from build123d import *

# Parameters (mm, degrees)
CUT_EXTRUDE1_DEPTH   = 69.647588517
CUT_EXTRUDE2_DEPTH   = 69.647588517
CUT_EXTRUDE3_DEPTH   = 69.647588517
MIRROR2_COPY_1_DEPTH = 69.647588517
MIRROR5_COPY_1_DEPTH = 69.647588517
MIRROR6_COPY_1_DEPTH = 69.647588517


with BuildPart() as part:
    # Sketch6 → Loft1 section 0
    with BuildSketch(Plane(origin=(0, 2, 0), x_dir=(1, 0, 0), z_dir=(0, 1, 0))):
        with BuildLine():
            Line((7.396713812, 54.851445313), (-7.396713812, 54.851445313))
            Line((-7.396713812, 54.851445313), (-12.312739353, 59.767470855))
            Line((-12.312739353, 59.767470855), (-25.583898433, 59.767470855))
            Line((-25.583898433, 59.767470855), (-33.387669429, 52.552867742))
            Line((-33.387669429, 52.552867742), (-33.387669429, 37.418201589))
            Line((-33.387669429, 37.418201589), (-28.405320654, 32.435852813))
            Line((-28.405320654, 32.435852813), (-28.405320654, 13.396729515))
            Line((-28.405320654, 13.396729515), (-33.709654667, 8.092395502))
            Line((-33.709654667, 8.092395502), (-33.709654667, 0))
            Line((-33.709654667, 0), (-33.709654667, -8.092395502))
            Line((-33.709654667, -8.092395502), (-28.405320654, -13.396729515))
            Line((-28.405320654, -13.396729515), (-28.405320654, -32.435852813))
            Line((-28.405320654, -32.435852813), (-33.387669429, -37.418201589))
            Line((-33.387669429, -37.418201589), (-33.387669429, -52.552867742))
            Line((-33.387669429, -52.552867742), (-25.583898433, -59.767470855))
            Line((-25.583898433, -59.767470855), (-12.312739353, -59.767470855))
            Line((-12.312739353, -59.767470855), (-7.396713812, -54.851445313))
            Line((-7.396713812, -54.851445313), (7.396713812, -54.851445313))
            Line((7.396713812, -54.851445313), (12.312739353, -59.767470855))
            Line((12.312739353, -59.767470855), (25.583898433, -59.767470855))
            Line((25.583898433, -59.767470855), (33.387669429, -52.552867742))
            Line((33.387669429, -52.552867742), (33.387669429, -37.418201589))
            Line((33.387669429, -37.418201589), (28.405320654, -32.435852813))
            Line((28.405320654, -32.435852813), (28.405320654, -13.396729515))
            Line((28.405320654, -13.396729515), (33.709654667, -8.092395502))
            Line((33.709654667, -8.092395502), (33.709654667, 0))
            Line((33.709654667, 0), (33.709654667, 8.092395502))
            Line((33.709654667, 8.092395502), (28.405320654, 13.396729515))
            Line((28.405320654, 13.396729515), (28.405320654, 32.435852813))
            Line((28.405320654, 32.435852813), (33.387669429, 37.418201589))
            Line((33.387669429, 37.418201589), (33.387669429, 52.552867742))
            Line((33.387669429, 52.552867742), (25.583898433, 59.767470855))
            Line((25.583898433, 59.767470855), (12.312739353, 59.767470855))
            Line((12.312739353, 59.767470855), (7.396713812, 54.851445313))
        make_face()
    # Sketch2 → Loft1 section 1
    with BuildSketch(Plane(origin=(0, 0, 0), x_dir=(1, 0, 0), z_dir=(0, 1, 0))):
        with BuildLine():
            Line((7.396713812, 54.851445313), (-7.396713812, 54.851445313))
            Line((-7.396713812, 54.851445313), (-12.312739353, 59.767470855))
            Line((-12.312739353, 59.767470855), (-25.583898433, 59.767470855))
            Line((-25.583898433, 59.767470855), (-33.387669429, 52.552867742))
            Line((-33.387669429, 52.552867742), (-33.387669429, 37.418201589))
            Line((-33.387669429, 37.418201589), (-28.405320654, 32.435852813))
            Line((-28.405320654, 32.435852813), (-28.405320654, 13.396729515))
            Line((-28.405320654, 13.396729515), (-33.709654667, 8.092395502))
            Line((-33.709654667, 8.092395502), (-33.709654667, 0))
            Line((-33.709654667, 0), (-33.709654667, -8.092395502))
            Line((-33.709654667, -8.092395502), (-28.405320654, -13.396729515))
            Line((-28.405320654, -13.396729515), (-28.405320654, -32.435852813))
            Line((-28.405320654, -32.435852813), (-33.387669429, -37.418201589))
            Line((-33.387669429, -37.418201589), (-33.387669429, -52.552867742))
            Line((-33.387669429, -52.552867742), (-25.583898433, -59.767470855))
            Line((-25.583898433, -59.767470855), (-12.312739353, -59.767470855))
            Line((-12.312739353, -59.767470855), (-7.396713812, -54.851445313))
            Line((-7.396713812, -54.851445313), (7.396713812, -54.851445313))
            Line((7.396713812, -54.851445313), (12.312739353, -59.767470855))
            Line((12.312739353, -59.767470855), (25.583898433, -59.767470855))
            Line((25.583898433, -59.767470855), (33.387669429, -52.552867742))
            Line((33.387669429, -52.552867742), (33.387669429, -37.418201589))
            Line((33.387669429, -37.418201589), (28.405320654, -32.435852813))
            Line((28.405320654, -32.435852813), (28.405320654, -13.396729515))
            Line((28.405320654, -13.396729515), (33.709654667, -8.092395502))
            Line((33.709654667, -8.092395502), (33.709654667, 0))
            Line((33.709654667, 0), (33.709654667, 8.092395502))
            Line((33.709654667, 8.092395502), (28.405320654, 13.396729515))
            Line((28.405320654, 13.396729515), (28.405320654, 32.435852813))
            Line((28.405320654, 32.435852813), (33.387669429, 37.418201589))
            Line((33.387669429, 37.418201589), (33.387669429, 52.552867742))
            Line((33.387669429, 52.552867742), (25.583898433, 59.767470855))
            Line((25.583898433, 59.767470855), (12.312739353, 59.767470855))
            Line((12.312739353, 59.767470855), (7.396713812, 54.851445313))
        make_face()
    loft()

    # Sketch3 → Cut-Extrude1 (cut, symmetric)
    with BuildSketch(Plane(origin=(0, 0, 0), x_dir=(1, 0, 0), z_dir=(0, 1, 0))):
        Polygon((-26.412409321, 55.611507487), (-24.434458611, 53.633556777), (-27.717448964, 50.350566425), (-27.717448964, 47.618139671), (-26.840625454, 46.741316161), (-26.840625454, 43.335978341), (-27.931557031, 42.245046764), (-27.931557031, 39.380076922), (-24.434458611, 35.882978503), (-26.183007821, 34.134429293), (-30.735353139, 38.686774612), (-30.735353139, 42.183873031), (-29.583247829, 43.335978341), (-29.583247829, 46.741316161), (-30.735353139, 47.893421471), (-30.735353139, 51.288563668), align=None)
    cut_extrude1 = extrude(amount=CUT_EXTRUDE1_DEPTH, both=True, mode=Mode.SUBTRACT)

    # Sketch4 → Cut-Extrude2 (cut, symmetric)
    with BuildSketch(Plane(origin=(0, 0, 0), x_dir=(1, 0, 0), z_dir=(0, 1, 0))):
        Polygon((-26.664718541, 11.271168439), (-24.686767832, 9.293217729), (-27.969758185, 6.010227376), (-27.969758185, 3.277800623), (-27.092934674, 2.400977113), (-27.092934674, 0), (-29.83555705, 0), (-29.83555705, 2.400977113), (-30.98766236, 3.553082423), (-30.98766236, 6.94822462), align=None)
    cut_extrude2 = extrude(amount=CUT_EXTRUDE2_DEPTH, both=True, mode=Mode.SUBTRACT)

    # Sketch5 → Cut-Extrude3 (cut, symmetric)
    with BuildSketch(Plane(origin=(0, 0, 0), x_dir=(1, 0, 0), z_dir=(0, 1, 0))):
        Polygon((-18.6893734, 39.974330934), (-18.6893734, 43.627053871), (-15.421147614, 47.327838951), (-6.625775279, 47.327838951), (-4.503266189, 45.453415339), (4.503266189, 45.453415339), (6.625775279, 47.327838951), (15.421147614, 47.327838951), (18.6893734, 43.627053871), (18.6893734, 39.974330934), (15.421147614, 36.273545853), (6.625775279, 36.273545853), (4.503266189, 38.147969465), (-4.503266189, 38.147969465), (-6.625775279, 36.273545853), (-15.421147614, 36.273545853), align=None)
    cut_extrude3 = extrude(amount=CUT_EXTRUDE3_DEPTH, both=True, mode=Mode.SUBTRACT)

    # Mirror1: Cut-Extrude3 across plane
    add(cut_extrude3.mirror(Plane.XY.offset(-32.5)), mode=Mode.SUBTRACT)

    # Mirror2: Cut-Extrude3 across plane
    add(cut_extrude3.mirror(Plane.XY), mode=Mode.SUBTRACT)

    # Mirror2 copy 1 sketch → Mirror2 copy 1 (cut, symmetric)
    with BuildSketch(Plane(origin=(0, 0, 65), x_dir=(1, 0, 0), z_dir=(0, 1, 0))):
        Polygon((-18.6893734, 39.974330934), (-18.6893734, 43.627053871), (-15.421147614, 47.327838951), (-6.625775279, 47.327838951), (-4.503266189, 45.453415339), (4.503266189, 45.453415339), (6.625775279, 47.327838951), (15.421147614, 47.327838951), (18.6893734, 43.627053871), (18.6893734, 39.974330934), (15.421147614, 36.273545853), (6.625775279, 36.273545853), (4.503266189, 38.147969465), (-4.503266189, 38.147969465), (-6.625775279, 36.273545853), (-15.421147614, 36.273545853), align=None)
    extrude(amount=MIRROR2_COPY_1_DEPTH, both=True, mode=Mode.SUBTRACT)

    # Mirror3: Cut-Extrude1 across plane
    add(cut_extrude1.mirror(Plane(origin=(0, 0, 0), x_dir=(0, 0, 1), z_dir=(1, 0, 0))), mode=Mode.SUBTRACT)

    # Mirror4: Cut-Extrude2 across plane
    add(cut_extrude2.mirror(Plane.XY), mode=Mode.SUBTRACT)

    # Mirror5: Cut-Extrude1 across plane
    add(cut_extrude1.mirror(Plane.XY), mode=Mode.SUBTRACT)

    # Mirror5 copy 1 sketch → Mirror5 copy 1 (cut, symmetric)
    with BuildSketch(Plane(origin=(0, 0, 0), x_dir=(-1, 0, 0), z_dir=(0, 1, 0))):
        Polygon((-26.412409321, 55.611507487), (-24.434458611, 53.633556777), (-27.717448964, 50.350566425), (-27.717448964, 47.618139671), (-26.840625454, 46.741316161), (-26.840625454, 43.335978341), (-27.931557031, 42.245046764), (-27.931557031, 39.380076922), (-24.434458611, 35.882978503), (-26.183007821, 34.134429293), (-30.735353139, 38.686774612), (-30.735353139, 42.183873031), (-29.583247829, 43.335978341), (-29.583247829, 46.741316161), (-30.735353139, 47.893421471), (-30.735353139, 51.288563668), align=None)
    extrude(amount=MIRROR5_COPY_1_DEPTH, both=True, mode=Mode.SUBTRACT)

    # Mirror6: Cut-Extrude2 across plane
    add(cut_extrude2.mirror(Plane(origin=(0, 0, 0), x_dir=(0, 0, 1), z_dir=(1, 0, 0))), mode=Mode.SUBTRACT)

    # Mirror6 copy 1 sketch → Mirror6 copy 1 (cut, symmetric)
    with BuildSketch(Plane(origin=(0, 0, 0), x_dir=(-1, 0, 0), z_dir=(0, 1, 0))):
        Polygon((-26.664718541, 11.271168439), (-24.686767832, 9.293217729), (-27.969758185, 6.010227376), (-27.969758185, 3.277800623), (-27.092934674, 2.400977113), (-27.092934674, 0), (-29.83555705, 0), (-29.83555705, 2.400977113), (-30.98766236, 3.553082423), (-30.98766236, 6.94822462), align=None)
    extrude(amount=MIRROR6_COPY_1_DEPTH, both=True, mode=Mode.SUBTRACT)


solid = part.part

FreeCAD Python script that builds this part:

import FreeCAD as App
import Part
import Sketcher
Q = App.Units.Quantity


def add_polygon(sketch, points):
    """Adds a closed chain of lines whose ends are joined by coincident constraints."""
    first, n = sketch.GeometryCount, len(points)
    for a, b in zip(points, points[1:] + points[:1]):
        sketch.addGeometry(Part.LineSegment(App.Vector(*a, 0), App.Vector(*b, 0)), False)
    for i in range(n):
        sketch.addConstraint(Sketcher.Constraint("Coincident", first + i, 2, first + (i + 1) % n, 1))

doc = App.newDocument("Part")
body = doc.addObject("PartDesign::Body", "Body")

sketch1 = body.newObject("Sketcher::SketchObject", "Sketch")
sketch1.AttachmentSupport = (doc.getObject("XZ_Plane"), [""])
sketch1.MapMode = "FlatFace"
sketch1.AttachmentOffset = App.Placement(App.Vector(0, 0, -2), App.Rotation())
add_polygon(sketch1, [(7, -55), (-7, -55), (-12, -60), (-26, -60), (-33, -53), (-33, -37), (-28, -32), (-28, -13), (-34, -8), (-34, 8), (-28, 13), (-28, 32), (-33, 37), (-33, 53), (-26, 60), (-12, 60), (-7, 55), (7, 55), (12, 60), (26, 60), (33, 53), (33, 37), (28, 32), (28, 13), (34, 8), (34, -8), (28, -13), (28, -32), (33, -37), (33, -53), (26, -60), (12, -60)])
sketch1.addConstraint([
    Sketcher.Constraint("Horizontal", 0),
    Sketcher.Constraint("Horizontal", 2),
    Sketcher.Constraint("Vertical", 4),
    Sketcher.Constraint("Vertical", 6),
    Sketcher.Constraint("Vertical", 8),
    Sketcher.Constraint("Vertical", 10),
    Sketcher.Constraint("Vertical", 12),
    Sketcher.Constraint("Horizontal", 14),
    Sketcher.Constraint("Horizontal", 16),
    Sketcher.Constraint("Horizontal", 18),
    Sketcher.Constraint("Vertical", 20),
    Sketcher.Constraint("Vertical", 22),
    Sketcher.Constraint("Vertical", 24),
    Sketcher.Constraint("Vertical", 26),
    Sketcher.Constraint("Vertical", 28),
    Sketcher.Constraint("Horizontal", 30),
    Sketcher.Constraint("Symmetric", 0, 2, 16, 2, -1, 1),
    Sketcher.Constraint("Symmetric", 1, 2, 17, 2, -1, 1),
    Sketcher.Constraint("Symmetric", 3, 2, 19, 2, -1, 1),
    Sketcher.Constraint("Symmetric", 5, 2, 21, 2, -1, 1),
    Sketcher.Constraint("Symmetric", 7, 2, 23, 2, -1, 1),
    Sketcher.Constraint("Symmetric", 9, 2, 25, 2, -1, 1),
    Sketcher.Constraint("Symmetric", 11, 2, 27, 2, -1, 1),
    Sketcher.Constraint("Symmetric", 13, 2, 29, 2, -1, 1),
    Sketcher.Constraint("Symmetric", 14, 2, 17, 2, -2),
    Sketcher.Constraint("Symmetric", 12, 2, 19, 2, -2),
    Sketcher.Constraint("Symmetric", 10, 2, 21, 2, -2),
    Sketcher.Constraint("Parallel", 1, 5),
    Sketcher.Constraint("Perpendicular", 5, 7),
    Sketcher.Constraint("Perpendicular", 7, 9),
    Sketcher.Constraint("Perpendicular", 9, 11),
    Sketcher.Constraint("Parallel", 11, 15),
    Sketcher.Constraint("Parallel", 3, 19),
    Sketcher.Constraint("Parallel", 17, 21),
    Sketcher.Constraint("Perpendicular", 21, 23),
    Sketcher.Constraint("Perpendicular", 23, 25),
    Sketcher.Constraint("Perpendicular", 25, 27),
    Sketcher.Constraint("Parallel", 13, 29),
    Sketcher.Constraint("Parallel", 27, 31),
    Sketcher.Constraint("Horizontal", 11, 2, 20, 2),
    Sketcher.Constraint("Horizontal", 9, 2, 22, 2),
    Sketcher.Constraint("Vertical", 2, 2, 13, 2),
    Sketcher.Constraint("Vertical", 17, 2, 30, 2),
    Sketcher.Constraint("DistanceX", 2, 2, 2, 1, Q("13.271159 mm")),
    Sketcher.Constraint("DistanceY", 8, 1, 8, 2, Q("16.184791 mm")),
    Sketcher.Constraint("DistanceX", 2, 2, -1, 1, Q("25.583898 mm")),
    Sketcher.Constraint("DistanceY", 4, 2, -1, 1, Q("37.418202 mm")),
    Sketcher.Constraint("Distance", 1, Q("6.95231 mm")),
    Sketcher.Constraint("Distance", 7, Q("7.501461 mm")),
    Sketcher.Constraint("DistanceY", 4, 1, 4, 2, Q("15.134666 mm")),
    Sketcher.Constraint("DistanceY", 6, 1, 6, 2, Q("19.039123 mm")),
    Sketcher.Constraint("DistanceY", 1, 2, -1, 1, Q("59.767471 mm")),
    Sketcher.Constraint("DistanceX", 3, 2, -1, 1, Q("33.387669 mm")),
])

sketch2 = body.newObject("Sketcher::SketchObject", "Sketch001")
sketch2.AttachmentSupport = (doc.getObject("XZ_Plane"), [""])
sketch2.MapMode = "FlatFace"
add_polygon(sketch2, [(7, -55), (-7, -55), (-12, -60), (-26, -60), (-33, -53), (-33, -37), (-28, -32), (-28, -13), (-34, -8), (-34, 8), (-28, 13), (-28, 32), (-33, 37), (-33, 53), (-26, 60), (-12, 60), (-7, 55), (7, 55), (12, 60), (26, 60), (33, 53), (33, 37), (28, 32), (28, 13), (34, 8), (34, -8), (28, -13), (28, -32), (33, -37), (33, -53), (26, -60), (12, -60)])
sketch2.addConstraint([
    Sketcher.Constraint("Horizontal", 0),
    Sketcher.Constraint("Horizontal", 2),
    Sketcher.Constraint("Vertical", 4),
    Sketcher.Constraint("Vertical", 6),
    Sketcher.Constraint("Vertical", 8),
    Sketcher.Constraint("Vertical", 10),
    Sketcher.Constraint("Vertical", 12),
    Sketcher.Constraint("Horizontal", 14),
    Sketcher.Constraint("Horizontal", 16),
    Sketcher.Constraint("Horizontal", 18),
    Sketcher.Constraint("Vertical", 20),
    Sketcher.Constraint("Vertical", 22),
    Sketcher.Constraint("Vertical", 24),
    Sketcher.Constraint("Vertical", 26),
    Sketcher.Constraint("Vertical", 28),
    Sketcher.Constraint("Horizontal", 30),
    Sketcher.Constraint("Symmetric", 0, 2, 16, 2, -1, 1),
    Sketcher.Constraint("Symmetric", 1, 2, 17, 2, -1, 1),
    Sketcher.Constraint("Symmetric", 3, 2, 19, 2, -1, 1),
    Sketcher.Constraint("Symmetric", 5, 2, 21, 2, -1, 1),
    Sketcher.Constraint("Symmetric", 7, 2, 23, 2, -1, 1),
    Sketcher.Constraint("Symmetric", 9, 2, 25, 2, -1, 1),
    Sketcher.Constraint("Symmetric", 11, 2, 27, 2, -1, 1),
    Sketcher.Constraint("Symmetric", 13, 2, 29, 2, -1, 1),
    Sketcher.Constraint("Symmetric", 14, 2, 17, 2, -2),
    Sketcher.Constraint("Symmetric", 12, 2, 19, 2, -2),
    Sketcher.Constraint("Symmetric", 10, 2, 21, 2, -2),
    Sketcher.Constraint("Parallel", 1, 5),
    Sketcher.Constraint("Perpendicular", 5, 7),
    Sketcher.Constraint("Perpendicular", 7, 9),
    Sketcher.Constraint("Perpendicular", 9, 11),
    Sketcher.Constraint("Parallel", 11, 15),
    Sketcher.Constraint("Parallel", 3, 19),
    Sketcher.Constraint("Parallel", 17, 21),
    Sketcher.Constraint("Perpendicular", 21, 23),
    Sketcher.Constraint("Perpendicular", 23, 25),
    Sketcher.Constraint("Perpendicular", 25, 27),
    Sketcher.Constraint("Parallel", 13, 29),
    Sketcher.Constraint("Parallel", 27, 31),
    Sketcher.Constraint("Horizontal", 11, 2, 20, 2),
    Sketcher.Constraint("Horizontal", 9, 2, 22, 2),
    Sketcher.Constraint("Vertical", 2, 2, 13, 2),
    Sketcher.Constraint("Vertical", 17, 2, 30, 2),
    Sketcher.Constraint("DistanceX", 2, 2, 2, 1, Q("13.271159 mm")),
    Sketcher.Constraint("DistanceY", 8, 1, 8, 2, Q("16.184791 mm")),
    Sketcher.Constraint("DistanceX", 2, 2, -1, 1, Q("25.583898 mm")),
    Sketcher.Constraint("DistanceY", 4, 2, -1, 1, Q("37.418202 mm")),
    Sketcher.Constraint("Distance", 1, Q("6.95231 mm")),
    Sketcher.Constraint("Distance", 7, Q("7.501461 mm")),
    Sketcher.Constraint("DistanceY", 4, 1, 4, 2, Q("15.134666 mm")),
    Sketcher.Constraint("DistanceY", 6, 1, 6, 2, Q("19.039123 mm")),
    Sketcher.Constraint("DistanceY", 1, 2, -1, 1, Q("59.767471 mm")),
    Sketcher.Constraint("DistanceX", 3, 2, -1, 1, Q("33.387669 mm")),
])

additiveloft = body.newObject("PartDesign::AdditiveLoft", "AdditiveLoft")
additiveloft.Profile = sketch1
additiveloft.Sections = [sketch2]

sketch3 = body.newObject("Sketcher::SketchObject", "Sketch002")
sketch3.AttachmentSupport = (doc.getObject("XZ_Plane"), [""])
sketch3.MapMode = "FlatFace"
add_polygon(sketch3, [(-24.4, -53.6), (-26.4, -55.6), (-30.7, -51.3), (-30.7, -47.9), (-29.6, -46.7), (-29.6, -43.3), (-30.7, -42.2), (-30.7, -38.7), (-26.2, -34.1), (-24.4, -35.9), (-27.9, -39.4), (-27.9, -42.2), (-26.8, -43.3), (-26.8, -46.7), (-27.7, -47.6), (-27.7, -50.4)])
sketch3.addConstraint([
    Sketcher.Constraint("Vertical", 2),
    Sketcher.Constraint("Vertical", 4),
    Sketcher.Constraint("Vertical", 6),
    Sketcher.Constraint("Vertical", 10),
    Sketcher.Constraint("Vertical", 12),
    Sketcher.Constraint("Vertical", 14),
    Sketcher.Constraint("Perpendicular", 0, 1),
    Sketcher.Constraint("Perpendicular", 1, 3),
    Sketcher.Constraint("Perpendicular", 3, 5),
    Sketcher.Constraint("Perpendicular", 5, 7),
    Sketcher.Constraint("Perpendicular", 7, 8),
    Sketcher.Constraint("Perpendicular", 8, 9),
    Sketcher.Constraint("Perpendicular", 9, 11),
    Sketcher.Constraint("Perpendicular", 11, 13),
    Sketcher.Constraint("Perpendicular", 13, 15),
    Sketcher.Constraint("Horizontal", 4, 2, 11, 2),
    Sketcher.Constraint("Horizontal", 3, 2, 12, 2),
    Sketcher.Constraint("Vertical", 2, 2, 5, 2),
    Sketcher.Constraint("Vertical", 8, 2, 15, 2),
    Sketcher.Constraint("Equal", 3, 5),
    Sketcher.Constraint("DistanceY", 6, 1, 6, 2, Q("3.497098 mm")),
    Sketcher.Constraint("DistanceY", 4, 2, 8, 2, Q("7.453 mm")),
    Sketcher.Constraint("DistanceY", 10, 2, 10, 1, Q("2.86497 mm")),
    Sketcher.Constraint("DistanceY", 4, 2, 9, 2, Q("3.955901 mm")),
    Sketcher.Constraint("DistanceX", 3, 2, 13, 2, Q("1.865799 mm")),
    Sketcher.Constraint("Distance", 7, Q("6.437988 mm")),
    Sketcher.Constraint("DistanceY", 2, 1, 2, 2, Q("3.395142 mm")),
    Sketcher.Constraint("DistanceY", 4, 1, 4, 2, Q("3.405338 mm")),
    Sketcher.Constraint("DistanceY", 14, 2, 14, 1, Q("2.732427 mm")),
    Sketcher.Constraint("DistanceX", 0, 2, -1, 1, Q("26.412409 mm")),
    Sketcher.Constraint("DistanceY", 2, 2, -1, 1, Q("47.893421 mm")),
    Sketcher.Constraint("DistanceY", 4, 2, -1, 1, Q("43.335978 mm")),
])
pocket1 = body.newObject("PartDesign::Pocket", "Pocket")
pocket1.Profile = sketch3
pocket1.Length = 139.295177
pocket1.Midplane = True

sketch4 = body.newObject("Sketcher::SketchObject", "Sketch003")
sketch4.AttachmentSupport = (doc.getObject("XZ_Plane"), [""])
sketch4.MapMode = "FlatFace"
add_polygon(sketch4, [(-24.7, -9.3), (-26.7, -11.3), (-31, -6.9), (-31, -3.6), (-29.8, -2.4), (-29.8, 0), (-27.1, 0), (-27.1, -2.4), (-28, -3.3), (-28, -6)])
sketch4.addConstraint([
    Sketcher.Constraint("Vertical", 2),
    Sketcher.Constraint("Vertical", 4),
    Sketcher.Constraint("Horizontal", 5),
    Sketcher.Constraint("Vertical", 6),
    Sketcher.Constraint("Vertical", 8),
    Sketcher.Constraint("PointOnObject", 4, 2, -1),
    Sketcher.Constraint("Perpendicular", 0, 1),
    Sketcher.Constraint("Perpendicular", 1, 3),
    Sketcher.Constraint("Parallel", 3, 7),
    Sketcher.Constraint("Perpendicular", 7, 9),
    Sketcher.Constraint("Horizontal", 3, 2, 6, 2),
    Sketcher.Constraint("Angle", 0, Q("-135 deg")),
    Sketcher.Constraint("DistanceY", 7, 2, -1, 1, Q("3.277801 mm")),
    Sketcher.Constraint("DistanceX", 3, 2, 7, 2, Q("1.865799 mm")),
    Sketcher.Constraint("Distance", 9, Q("4.642849 mm")),
    Sketcher.Constraint("DistanceX", 5, 1, 5, 2, Q("2.742622 mm")),
    Sketcher.Constraint("DistanceY", 2, 1, 2, 2, Q("3.395142 mm")),
    Sketcher.Constraint("DistanceY", 8, 2, 8, 1, Q("2.732427 mm")),
    Sketcher.Constraint("DistanceX", 0, 2, -1, 1, Q("26.664719 mm")),
    Sketcher.Constraint("DistanceY", 0, 2, -1, 1, Q("11.271168 mm")),
])
pocket2 = body.newObject("PartDesign::Pocket", "Pocket001")
pocket2.Profile = sketch4
pocket2.Length = 139.295177
pocket2.Midplane = True

sketch5 = body.newObject("Sketcher::SketchObject", "Sketch004")
sketch5.AttachmentSupport = (doc.getObject("XZ_Plane"), [""])
sketch5.MapMode = "FlatFace"
add_polygon(sketch5, [(-18.7, -43.6), (-18.7, -40), (-15.4, -36.3), (-6.6, -36.3), (-4.5, -38.1), (4.5, -38.1), (6.6, -36.3), (15.4, -36.3), (18.7, -40), (18.7, -43.6), (15.4, -47.3), (6.6, -47.3), (4.5, -45.5), (-4.5, -45.5), (-6.6, -47.3), (-15.4, -47.3)])
sketch5.addConstraint([
    Sketcher.Constraint("Vertical", 0),
    Sketcher.Constraint("Horizontal", 2),
    Sketcher.Constraint("Horizontal", 4),
    Sketcher.Constraint("Horizontal", 6),
    Sketcher.Constraint("Vertical", 8),
    Sketcher.Constraint("Horizontal", 10),
    Sketcher.Constraint("Horizontal", 12),
    Sketcher.Constraint("Horizontal", 14),
    Sketcher.Constraint("Symmetric", 2, 2, 5, 2, -2),
    Sketcher.Constraint("Symmetric", 0, 2, 7, 2, -2),
    Sketcher.Constraint("Symmetric", 10, 2, 13, 2, -2),
    Sketcher.Constraint("Perpendicular", 1, 3),
    Sketcher.Constraint("Perpendicular", 5, 7),
    Sketcher.Constraint("Perpendicular", 3, 9),
    Sketcher.Constraint("Perpendicular", 9, 11),
    Sketcher.Constraint("Perpendicular", 7, 13),
    Sketcher.Constraint("Perpendicular", 13, 15),
    Sketcher.Constraint("Horizontal", 8, 2, 15, 2),
    Sketcher.Constraint("Vertical", 6, 2, 9, 2),
    Sketcher.Constraint("Vertical", 5, 2, 10, 2),
    Sketcher.Constraint("Vertical", 4, 2, 11, 2),
    Sketcher.Constraint("Vertical", 3, 2, 12, 2),
    Sketcher.Constraint("DistanceX", 0, 2, 2, 2, Q("12.063598 mm")),
    Sketcher.Constraint("Distance", 1, Q("4.937318 mm")),
    Sketcher.Constraint("DistanceX", 2, 1, 2, 2, Q("8.795372 mm")),
    Sketcher.Constraint("DistanceX", 4, 1, 4, 2, Q("9.006532 mm")),
    Sketcher.Constraint("DistanceY", 0, 1, 0, 2, Q("3.652723 mm")),
    Sketcher.Constraint("DistanceY", 0, 2, -1, 1, Q("39.974331 mm")),
    Sketcher.Constraint("DistanceY", 3, 2, -1, 1, Q("38.147969 mm")),
])
pocket3 = body.newObject("PartDesign::Pocket", "Pocket002")
pocket3.Profile = sketch5
pocket3.Length = 139.295177
pocket3.Midplane = True
doc.recompute()

datumplane = body.newObject("PartDesign::Plane", "DatumPlane")
datumplane.AttachmentSupport = (doc.getObject("XY_Plane"), [""])
datumplane.MapMode = "FlatFace"
datumplane.AttachmentOffset = App.Placement(App.Vector(0, 0, -32.5), App.Rotation())
mirrored = body.newObject("PartDesign::Mirrored", "Mirrored")
mirrored.Originals = [pocket3]
mirrored.MirrorPlane = (datumplane, [""])
body.Tip = mirrored
doc.recompute()

mirrored2 = body.newObject("PartDesign::Mirrored", "Mirrored001")
mirrored2.Originals = [pocket3]
mirrored2.MirrorPlane = (doc.getObject("XY_Plane"), [""])
body.Tip = mirrored2

sketch6 = body.newObject("Sketcher::SketchObject", "Sketch005")
sketch6.AttachmentSupport = (doc.getObject("XZ_Plane"), [""])
sketch6.MapMode = "FlatFace"
add_polygon(sketch6, [(-18.7, 21.4), (-18.7, 25), (-15.4, 28.7), (-6.6, 28.7), (-4.5, 26.9), (4.5, 26.9), (6.6, 28.7), (15.4, 28.7), (18.7, 25), (18.7, 21.4), (15.4, 17.7), (6.6, 17.7), (4.5, 19.5), (-4.5, 19.5), (-6.6, 17.7), (-15.4, 17.7)])
sketch6.addConstraint([
    Sketcher.Constraint("Vertical", 0),
    Sketcher.Constraint("Horizontal", 2),
    Sketcher.Constraint("Horizontal", 4),
    Sketcher.Constraint("Horizontal", 6),
    Sketcher.Constraint("Vertical", 8),
    Sketcher.Constraint("Horizontal", 10),
    Sketcher.Constraint("Horizontal", 12),
    Sketcher.Constraint("Horizontal", 14),
    Sketcher.Constraint("Symmetric", 2, 2, 5, 2, -2),
    Sketcher.Constraint("Symmetric", 0, 2, 7, 2, -2),
    Sketcher.Constraint("Symmetric", 10, 2, 13, 2, -2),
    Sketcher.Constraint("Perpendicular", 1, 3),
    Sketcher.Constraint("Perpendicular", 5, 7),
    Sketcher.Constraint("Perpendicular", 3, 9),
    Sketcher.Constraint("Perpendicular", 9, 11),
    Sketcher.Constraint("Perpendicular", 7, 13),
    Sketcher.Constraint("Perpendicular", 13, 15),
    Sketcher.Constraint("Horizontal", 8, 2, 15, 2),
    Sketcher.Constraint("Vertical", 6, 2, 9, 2),
    Sketcher.Constraint("Vertical", 5, 2, 10, 2),
    Sketcher.Constraint("Vertical", 4, 2, 11, 2),
    Sketcher.Constraint("Vertical", 3, 2, 12, 2),
    Sketcher.Constraint("DistanceX", 0, 2, 2, 2, Q("12.063598 mm")),
    Sketcher.Constraint("Distance", 1, Q("4.937318 mm")),
    Sketcher.Constraint("DistanceX", 2, 1, 2, 2, Q("8.795372 mm")),
    Sketcher.Constraint("DistanceX", 4, 1, 4, 2, Q("9.006532 mm")),
    Sketcher.Constraint("DistanceY", 0, 1, 0, 2, Q("3.652723 mm")),
    Sketcher.Constraint("DistanceY", -1, 1, 0, 2, Q("25.025669 mm")),
    Sketcher.Constraint("DistanceY", -1, 1, 3, 2, Q("26.852031 mm")),
])
pocket4 = body.newObject("PartDesign::Pocket", "Pocket003")
pocket4.Profile = sketch6
pocket4.Length = 139.295177
pocket4.Midplane = True
doc.recompute()

mirrored3 = body.newObject("PartDesign::Mirrored", "Mirrored002")
mirrored3.Originals = [pocket1]
mirrored3.MirrorPlane = (doc.getObject("YZ_Plane"), [""])
body.Tip = mirrored3
doc.recompute()

mirrored4 = body.newObject("PartDesign::Mirrored", "Mirrored003")
mirrored4.Originals = [pocket2]
mirrored4.MirrorPlane = (doc.getObject("XY_Plane"), [""])
body.Tip = mirrored4
doc.recompute()

mirrored5 = body.newObject("PartDesign::Mirrored", "Mirrored004")
mirrored5.Originals = [pocket1]
mirrored5.MirrorPlane = (doc.getObject("XY_Plane"), [""])
body.Tip = mirrored5

sketch7 = body.newObject("Sketcher::SketchObject", "Sketch006")
sketch7.AttachmentSupport = (doc.getObject("XZ_Plane"), [""])
sketch7.MapMode = "FlatFace"
add_polygon(sketch7, [(24.4, 53.6), (26.4, 55.6), (30.7, 51.3), (30.7, 47.9), (29.6, 46.7), (29.6, 43.3), (30.7, 42.2), (30.7, 38.7), (26.2, 34.1), (24.4, 35.9), (27.9, 39.4), (27.9, 42.2), (26.8, 43.3), (26.8, 46.7), (27.7, 47.6), (27.7, 50.4)])
sketch7.addConstraint([
    Sketcher.Constraint("Vertical", 2),
    Sketcher.Constraint("Vertical", 4),
    Sketcher.Constraint("Vertical", 6),
    Sketcher.Constraint("Vertical", 10),
    Sketcher.Constraint("Vertical", 12),
    Sketcher.Constraint("Vertical", 14),
    Sketcher.Constraint("Perpendicular", 0, 1),
    Sketcher.Constraint("Perpendicular", 1, 3),
    Sketcher.Constraint("Perpendicular", 3, 5),
    Sketcher.Constraint("Perpendicular", 5, 7),
    Sketcher.Constraint("Perpendicular", 7, 8),
    Sketcher.Constraint("Perpendicular", 8, 9),
    Sketcher.Constraint("Perpendicular", 9, 11),
    Sketcher.Constraint("Perpendicular", 11, 13),
    Sketcher.Constraint("Perpendicular", 13, 15),
    Sketcher.Constraint("Horizontal", 4, 2, 11, 2),
    Sketcher.Constraint("Horizontal", 3, 2, 12, 2),
    Sketcher.Constraint("Vertical", 2, 2, 5, 2),
    Sketcher.Constraint("Vertical", 8, 2, 15, 2),
    Sketcher.Constraint("Equal", 3, 5),
    Sketcher.Constraint("DistanceY", 6, 2, 6, 1, Q("3.497098 mm")),
    Sketcher.Constraint("DistanceY", 8, 2, 4, 2, Q("7.453 mm")),
    Sketcher.Constraint("DistanceY", 10, 1, 10, 2, Q("2.86497 mm")),
    Sketcher.Constraint("DistanceY", 9, 2, 4, 2, Q("3.955901 mm")),
    Sketcher.Constraint("DistanceX", 13, 2, 3, 2, Q("1.865799 mm")),
    Sketcher.Constraint("Distance", 7, Q("6.437988 mm")),
    Sketcher.Constraint("DistanceY", 2, 2, 2, 1, Q("3.395142 mm")),
    Sketcher.Constraint("DistanceY", 4, 2, 4, 1, Q("3.405338 mm")),
    Sketcher.Constraint("DistanceY", 14, 1, 14, 2, Q("2.732427 mm")),
    Sketcher.Constraint("DistanceX", -1, 1, 0, 2, Q("26.412409 mm")),
    Sketcher.Constraint("DistanceY", -1, 1, 2, 2, Q("47.893421 mm")),
    Sketcher.Constraint("DistanceY", -1, 1, 4, 2, Q("43.335978 mm")),
])
pocket5 = body.newObject("PartDesign::Pocket", "Pocket004")
pocket5.Profile = sketch7
pocket5.Length = 139.295177
pocket5.Midplane = True
doc.recompute()

mirrored6 = body.newObject("PartDesign::Mirrored", "Mirrored005")
mirrored6.Originals = [pocket2]
mirrored6.MirrorPlane = (doc.getObject("YZ_Plane"), [""])
body.Tip = mirrored6

sketch8 = body.newObject("Sketcher::SketchObject", "Sketch007")
sketch8.AttachmentSupport = (doc.getObject("XZ_Plane"), [""])
sketch8.MapMode = "FlatFace"
add_polygon(sketch8, [(24.7, 9.3), (26.7, 11.3), (31, 6.9), (31, 3.6), (29.8, 2.4), (29.8, 0), (27.1, 0), (27.1, 2.4), (28, 3.3), (28, 6)])
sketch8.addConstraint([
    Sketcher.Constraint("Vertical", 2),
    Sketcher.Constraint("Vertical", 4),
    Sketcher.Constraint("Horizontal", 5),
    Sketcher.Constraint("Vertical", 6),
    Sketcher.Constraint("Vertical", 8),
    Sketcher.Constraint("PointOnObject", 4, 2, -1),
    Sketcher.Constraint("Perpendicular", 0, 1),
    Sketcher.Constraint("Perpendicular", 1, 3),
    Sketcher.Constraint("Parallel", 3, 7),
    Sketcher.Constraint("Perpendicular", 7, 9),
    Sketcher.Constraint("Horizontal", 3, 2, 6, 2),
    Sketcher.Constraint("Angle", 0, Q("45 deg")),
    Sketcher.Constraint("DistanceY", -1, 1, 7, 2, Q("3.277801 mm")),
    Sketcher.Constraint("DistanceX", 7, 2, 3, 2, Q("1.865799 mm")),
    Sketcher.Constraint("Distance", 9, Q("4.642849 mm")),
    Sketcher.Constraint("DistanceX", 5, 2, 5, 1, Q("2.742622 mm")),
    Sketcher.Constraint("DistanceY", 2, 2, 2, 1, Q("3.395142 mm")),
    Sketcher.Constraint("DistanceY", 8, 1, 8, 2, Q("2.732427 mm")),
    Sketcher.Constraint("DistanceX", -1, 1, 0, 2, Q("26.664719 mm")),
    Sketcher.Constraint("DistanceY", -1, 1, 0, 2, Q("11.271168 mm")),
])
pocket6 = body.newObject("PartDesign::Pocket", "Pocket005")
pocket6.Profile = sketch8
pocket6.Length = 139.295177
pocket6.Midplane = True

doc.recompute()
